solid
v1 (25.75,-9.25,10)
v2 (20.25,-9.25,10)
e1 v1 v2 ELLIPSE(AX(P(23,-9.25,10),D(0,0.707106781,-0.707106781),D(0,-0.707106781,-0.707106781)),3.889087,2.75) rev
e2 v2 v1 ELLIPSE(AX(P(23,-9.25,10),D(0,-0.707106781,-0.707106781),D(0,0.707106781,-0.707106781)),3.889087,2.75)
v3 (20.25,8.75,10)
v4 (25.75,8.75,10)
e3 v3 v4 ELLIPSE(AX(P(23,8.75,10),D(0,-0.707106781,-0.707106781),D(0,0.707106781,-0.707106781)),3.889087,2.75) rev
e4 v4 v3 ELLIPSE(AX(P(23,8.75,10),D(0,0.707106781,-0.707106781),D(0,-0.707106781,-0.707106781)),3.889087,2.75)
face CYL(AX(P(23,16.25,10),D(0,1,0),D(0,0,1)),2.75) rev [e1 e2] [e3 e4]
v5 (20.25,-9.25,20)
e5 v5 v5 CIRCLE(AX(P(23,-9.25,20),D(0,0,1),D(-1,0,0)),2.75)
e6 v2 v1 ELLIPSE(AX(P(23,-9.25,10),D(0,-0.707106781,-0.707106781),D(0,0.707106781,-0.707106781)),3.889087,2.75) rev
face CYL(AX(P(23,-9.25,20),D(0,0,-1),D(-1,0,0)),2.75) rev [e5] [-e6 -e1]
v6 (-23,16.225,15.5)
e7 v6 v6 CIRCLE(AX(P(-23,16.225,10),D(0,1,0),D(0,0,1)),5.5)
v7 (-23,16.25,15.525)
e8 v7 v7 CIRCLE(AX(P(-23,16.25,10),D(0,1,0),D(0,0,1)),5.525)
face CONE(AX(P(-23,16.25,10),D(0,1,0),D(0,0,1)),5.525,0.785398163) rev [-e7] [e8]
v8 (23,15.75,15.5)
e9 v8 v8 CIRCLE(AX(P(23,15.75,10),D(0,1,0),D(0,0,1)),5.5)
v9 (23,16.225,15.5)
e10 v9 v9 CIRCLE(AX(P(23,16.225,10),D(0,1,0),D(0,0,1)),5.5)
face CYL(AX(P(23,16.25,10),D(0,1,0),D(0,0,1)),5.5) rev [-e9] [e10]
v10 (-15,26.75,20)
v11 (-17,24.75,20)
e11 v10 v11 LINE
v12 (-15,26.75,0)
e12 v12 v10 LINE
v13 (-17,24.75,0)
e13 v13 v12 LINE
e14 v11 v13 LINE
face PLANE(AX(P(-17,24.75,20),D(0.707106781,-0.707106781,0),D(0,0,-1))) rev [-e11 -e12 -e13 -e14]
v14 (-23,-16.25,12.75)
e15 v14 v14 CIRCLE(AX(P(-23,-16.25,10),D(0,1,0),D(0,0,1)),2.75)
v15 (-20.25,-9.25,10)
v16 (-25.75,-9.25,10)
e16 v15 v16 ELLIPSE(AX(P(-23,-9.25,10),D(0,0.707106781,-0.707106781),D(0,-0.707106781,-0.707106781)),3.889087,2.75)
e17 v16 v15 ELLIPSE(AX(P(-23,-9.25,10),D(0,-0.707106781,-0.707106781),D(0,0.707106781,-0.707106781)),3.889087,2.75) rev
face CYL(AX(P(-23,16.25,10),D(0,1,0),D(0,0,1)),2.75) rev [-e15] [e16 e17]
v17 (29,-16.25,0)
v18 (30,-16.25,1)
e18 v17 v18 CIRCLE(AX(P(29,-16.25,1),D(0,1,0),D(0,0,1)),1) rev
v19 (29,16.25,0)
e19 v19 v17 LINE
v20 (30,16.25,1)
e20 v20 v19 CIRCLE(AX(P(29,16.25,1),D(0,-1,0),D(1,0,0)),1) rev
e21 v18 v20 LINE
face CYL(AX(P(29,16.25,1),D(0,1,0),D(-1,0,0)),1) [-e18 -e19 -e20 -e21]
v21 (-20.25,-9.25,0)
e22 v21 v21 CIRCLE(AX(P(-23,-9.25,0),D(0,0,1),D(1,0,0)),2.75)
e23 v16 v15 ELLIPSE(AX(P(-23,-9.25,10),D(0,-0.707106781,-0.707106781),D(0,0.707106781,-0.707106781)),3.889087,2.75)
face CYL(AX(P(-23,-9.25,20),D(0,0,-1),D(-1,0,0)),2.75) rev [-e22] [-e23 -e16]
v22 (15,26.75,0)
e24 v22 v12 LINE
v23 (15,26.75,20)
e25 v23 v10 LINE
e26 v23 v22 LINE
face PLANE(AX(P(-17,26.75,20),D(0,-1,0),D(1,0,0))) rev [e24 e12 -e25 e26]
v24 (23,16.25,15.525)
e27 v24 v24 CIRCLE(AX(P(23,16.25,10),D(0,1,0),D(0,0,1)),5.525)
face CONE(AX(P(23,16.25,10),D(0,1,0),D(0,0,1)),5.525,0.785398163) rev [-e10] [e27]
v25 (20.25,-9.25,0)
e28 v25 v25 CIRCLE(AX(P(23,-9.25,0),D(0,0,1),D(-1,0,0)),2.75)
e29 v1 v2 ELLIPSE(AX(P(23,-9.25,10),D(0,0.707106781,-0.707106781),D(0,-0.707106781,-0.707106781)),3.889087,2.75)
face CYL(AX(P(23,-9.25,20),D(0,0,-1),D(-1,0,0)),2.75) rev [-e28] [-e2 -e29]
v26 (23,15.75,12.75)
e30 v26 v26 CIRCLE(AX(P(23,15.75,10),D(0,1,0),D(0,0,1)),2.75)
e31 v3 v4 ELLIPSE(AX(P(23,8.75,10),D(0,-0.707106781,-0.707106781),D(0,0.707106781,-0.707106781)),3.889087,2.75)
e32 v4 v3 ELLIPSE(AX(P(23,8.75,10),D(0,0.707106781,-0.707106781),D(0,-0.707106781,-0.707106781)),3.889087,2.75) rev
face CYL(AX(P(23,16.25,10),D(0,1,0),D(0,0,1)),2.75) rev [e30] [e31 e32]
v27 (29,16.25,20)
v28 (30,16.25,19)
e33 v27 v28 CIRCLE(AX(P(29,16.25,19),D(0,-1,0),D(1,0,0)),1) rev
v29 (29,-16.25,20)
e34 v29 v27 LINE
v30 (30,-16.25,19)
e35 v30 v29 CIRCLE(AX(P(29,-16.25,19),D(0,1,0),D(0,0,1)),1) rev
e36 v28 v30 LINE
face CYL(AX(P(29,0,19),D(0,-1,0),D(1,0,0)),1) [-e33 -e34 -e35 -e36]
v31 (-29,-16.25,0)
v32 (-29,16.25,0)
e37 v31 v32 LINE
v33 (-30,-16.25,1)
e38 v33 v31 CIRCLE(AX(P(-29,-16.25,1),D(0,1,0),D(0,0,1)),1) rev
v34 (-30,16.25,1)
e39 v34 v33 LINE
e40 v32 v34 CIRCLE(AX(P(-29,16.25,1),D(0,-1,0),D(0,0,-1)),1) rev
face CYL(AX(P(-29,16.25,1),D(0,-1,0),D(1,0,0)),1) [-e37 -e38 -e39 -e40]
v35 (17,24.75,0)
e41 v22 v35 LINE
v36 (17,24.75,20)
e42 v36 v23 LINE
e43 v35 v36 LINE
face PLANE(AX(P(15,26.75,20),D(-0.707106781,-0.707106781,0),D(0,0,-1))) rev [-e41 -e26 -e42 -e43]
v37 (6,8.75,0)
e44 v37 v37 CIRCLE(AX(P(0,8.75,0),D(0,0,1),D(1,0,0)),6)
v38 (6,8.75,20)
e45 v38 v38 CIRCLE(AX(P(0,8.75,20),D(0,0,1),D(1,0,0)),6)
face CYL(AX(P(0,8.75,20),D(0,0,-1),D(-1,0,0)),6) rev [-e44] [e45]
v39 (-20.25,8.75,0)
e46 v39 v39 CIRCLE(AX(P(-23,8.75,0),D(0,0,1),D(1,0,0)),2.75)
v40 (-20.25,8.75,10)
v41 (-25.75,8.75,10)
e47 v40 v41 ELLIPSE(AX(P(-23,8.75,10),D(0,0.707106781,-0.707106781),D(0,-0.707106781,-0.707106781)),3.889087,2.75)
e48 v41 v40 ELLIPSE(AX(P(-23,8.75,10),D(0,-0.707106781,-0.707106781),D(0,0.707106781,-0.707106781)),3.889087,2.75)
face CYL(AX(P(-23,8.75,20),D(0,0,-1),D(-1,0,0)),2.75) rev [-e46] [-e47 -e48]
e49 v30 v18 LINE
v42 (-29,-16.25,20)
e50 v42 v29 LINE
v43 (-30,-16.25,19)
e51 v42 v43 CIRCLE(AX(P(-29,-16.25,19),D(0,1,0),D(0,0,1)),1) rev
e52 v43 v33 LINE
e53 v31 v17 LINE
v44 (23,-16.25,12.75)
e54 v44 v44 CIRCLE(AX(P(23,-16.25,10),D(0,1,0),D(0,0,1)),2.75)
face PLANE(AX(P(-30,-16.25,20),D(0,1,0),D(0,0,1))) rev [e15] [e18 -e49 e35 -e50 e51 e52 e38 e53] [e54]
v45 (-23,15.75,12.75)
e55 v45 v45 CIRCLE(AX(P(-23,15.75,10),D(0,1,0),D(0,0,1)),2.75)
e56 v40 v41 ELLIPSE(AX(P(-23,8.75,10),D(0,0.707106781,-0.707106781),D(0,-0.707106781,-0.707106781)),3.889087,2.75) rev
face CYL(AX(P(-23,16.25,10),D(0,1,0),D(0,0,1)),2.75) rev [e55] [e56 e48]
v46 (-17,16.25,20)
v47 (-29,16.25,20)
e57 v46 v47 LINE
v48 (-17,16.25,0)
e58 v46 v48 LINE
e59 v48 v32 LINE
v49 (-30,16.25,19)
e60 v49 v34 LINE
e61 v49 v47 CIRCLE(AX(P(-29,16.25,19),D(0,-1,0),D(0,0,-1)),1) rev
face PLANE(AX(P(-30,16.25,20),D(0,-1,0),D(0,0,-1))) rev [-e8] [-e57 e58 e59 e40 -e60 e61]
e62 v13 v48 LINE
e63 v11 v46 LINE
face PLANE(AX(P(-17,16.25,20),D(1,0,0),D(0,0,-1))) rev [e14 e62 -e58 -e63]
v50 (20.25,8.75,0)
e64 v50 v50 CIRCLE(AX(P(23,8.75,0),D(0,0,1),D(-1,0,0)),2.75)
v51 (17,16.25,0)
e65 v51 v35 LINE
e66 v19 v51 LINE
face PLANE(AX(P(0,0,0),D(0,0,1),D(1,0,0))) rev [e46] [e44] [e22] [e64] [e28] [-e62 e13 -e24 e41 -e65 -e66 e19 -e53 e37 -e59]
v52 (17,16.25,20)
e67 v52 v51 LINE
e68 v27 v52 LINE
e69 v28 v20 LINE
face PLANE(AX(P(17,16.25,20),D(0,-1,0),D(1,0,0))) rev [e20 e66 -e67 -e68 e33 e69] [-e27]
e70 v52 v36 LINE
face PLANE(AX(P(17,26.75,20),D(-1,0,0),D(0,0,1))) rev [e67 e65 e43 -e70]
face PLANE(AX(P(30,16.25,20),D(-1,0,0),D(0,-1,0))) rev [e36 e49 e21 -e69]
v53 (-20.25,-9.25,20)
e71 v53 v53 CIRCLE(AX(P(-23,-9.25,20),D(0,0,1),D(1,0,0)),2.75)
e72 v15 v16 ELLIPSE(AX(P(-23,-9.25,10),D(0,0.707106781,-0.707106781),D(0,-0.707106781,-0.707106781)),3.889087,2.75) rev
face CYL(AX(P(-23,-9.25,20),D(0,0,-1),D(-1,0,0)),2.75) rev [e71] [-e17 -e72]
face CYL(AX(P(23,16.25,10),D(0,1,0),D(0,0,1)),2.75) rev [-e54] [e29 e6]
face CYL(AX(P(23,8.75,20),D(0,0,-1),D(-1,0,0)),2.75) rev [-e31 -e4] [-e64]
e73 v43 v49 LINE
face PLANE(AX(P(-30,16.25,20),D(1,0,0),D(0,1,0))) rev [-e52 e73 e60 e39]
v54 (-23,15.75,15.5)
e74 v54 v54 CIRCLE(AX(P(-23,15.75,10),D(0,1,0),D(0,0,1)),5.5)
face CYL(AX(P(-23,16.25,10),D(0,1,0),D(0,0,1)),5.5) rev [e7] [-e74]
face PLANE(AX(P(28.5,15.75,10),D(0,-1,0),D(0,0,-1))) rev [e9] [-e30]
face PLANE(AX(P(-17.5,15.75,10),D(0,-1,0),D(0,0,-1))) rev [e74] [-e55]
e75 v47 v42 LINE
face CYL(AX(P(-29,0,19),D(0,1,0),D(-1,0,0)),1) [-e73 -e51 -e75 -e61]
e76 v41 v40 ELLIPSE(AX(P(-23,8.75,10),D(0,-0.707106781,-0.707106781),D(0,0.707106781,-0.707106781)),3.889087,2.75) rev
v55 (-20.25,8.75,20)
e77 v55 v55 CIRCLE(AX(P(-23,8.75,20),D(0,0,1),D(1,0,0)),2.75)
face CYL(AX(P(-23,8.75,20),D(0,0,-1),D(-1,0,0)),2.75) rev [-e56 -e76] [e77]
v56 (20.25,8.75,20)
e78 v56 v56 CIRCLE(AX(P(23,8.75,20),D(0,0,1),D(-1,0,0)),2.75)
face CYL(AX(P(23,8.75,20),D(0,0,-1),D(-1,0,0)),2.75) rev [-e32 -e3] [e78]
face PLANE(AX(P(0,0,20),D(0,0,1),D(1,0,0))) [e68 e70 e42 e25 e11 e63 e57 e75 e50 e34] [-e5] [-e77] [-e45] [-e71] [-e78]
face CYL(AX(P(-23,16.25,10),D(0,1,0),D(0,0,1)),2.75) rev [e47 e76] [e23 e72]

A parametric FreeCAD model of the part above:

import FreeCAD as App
import Part
import Sketcher
from FreeCAD import Vector
Q = App.Units.Quantity


def edges_at(feature, points):
    """Names of the edges that pass closest to the given points."""
    edges = feature.Shape.Edges
    near = lambda p: min(range(len(edges)), key=lambda i: edges[i].distToShape(Part.Vertex(*p))[0])
    return sorted({f"Edge{near(p) + 1}" for p in points})


def add_polygon(sketch, points):
    """Adds a closed chain of lines whose ends are joined by coincident constraints."""
    first, n = sketch.GeometryCount, len(points)
    for a, b in zip(points, points[1:] + points[:1]):
        sketch.addGeometry(Part.LineSegment(App.Vector(*a, 0), App.Vector(*b, 0)), False)
    for i in range(n):
        sketch.addConstraint(Sketcher.Constraint("Coincident", first + i, 2, first + (i + 1) % n, 1))

doc = App.newDocument("Part")
body = doc.addObject("PartDesign::Body", "Body")

sketch1 = body.newObject("Sketcher::SketchObject", "Sketch")
sketch1.AttachmentSupport = (doc.getObject("XY_Plane"), [""])
sketch1.MapMode = "FlatFace"
add_polygon(sketch1, [(-17, 26.8), (-17, 16.2), (-30, 16.2), (-30, -16.2), (30, -16.2), (30, 16.2), (17, 16.2), (17, 26.8)])
sketch1.addGeometry(Part.Circle(Vector(23, -9.2, 0), Vector(0, 0, 1), 2.8), False)
sketch1.addGeometry(Part.Circle(Vector(-23, -9.2, 0), Vector(0, 0, 1), 2.8), False)
sketch1.addGeometry(Part.Circle(Vector(23, 8.8, 0), Vector(0, 0, 1), 2.8), False)
sketch1.addGeometry(Part.Circle(Vector(0, 8.8, 0), Vector(0, 0, 1), 6), False)
sketch1.addGeometry(Part.Circle(Vector(-23, 8.8, 0), Vector(0, 0, 1), 2.8), False)
sketch1.addConstraint([
    Sketcher.Constraint("Vertical", 0),
    Sketcher.Constraint("Horizontal", 1),
    Sketcher.Constraint("Vertical", 2),
    Sketcher.Constraint("Horizontal", 3),
    Sketcher.Constraint("Vertical", 4),
    Sketcher.Constraint("Horizontal", 5),
    Sketcher.Constraint("Vertical", 6),
    Sketcher.Constraint("Horizontal", 7),
    Sketcher.Constraint("Equal", 8, 9),
    Sketcher.Constraint("Equal", 9, 10),
    Sketcher.Constraint("Equal", 10, 12),
    Sketcher.Constraint("Symmetric", 1, 2, 3, 2, -1, 1),
    Sketcher.Constraint("Symmetric", 8, 3, 9, 3, -2),
    Sketcher.Constraint("Symmetric", 10, 3, 12, 3, -2),
    Sketcher.Constraint("Symmetric", 0, 2, 5, 2, -2),
    Sketcher.Constraint("PointOnObject", 11, 3, -2),
    Sketcher.Constraint("Horizontal", 10, 3, 11, 3),
    Sketcher.Constraint("Vertical", 8, 3, 10, 3),
    Sketcher.Constraint("Diameter", 11, Q("12 mm")),
    Sketcher.Constraint("Diameter", 8, Q("5.5 mm")),
    Sketcher.Constraint("DistanceX", 1, 2, 1, 1, Q("13 mm")),
    Sketcher.Constraint("DistanceX", 3, 1, 3, 2, Q("60 mm")),
    Sketcher.Constraint("DistanceY", 0, 2, 0, 1, Q("10.5 mm")),
    Sketcher.Constraint("DistanceY", 2, 2, 2, 1, Q("32.5 mm")),
    Sketcher.Constraint("DistanceX", -1, 1, 8, 3, Q("23 mm")),
    Sketcher.Constraint("DistanceY", 8, 3, 10, 3, Q("18 mm")),
    Sketcher.Constraint("DistanceY", 2, 2, 9, 3, Q("7 mm")),
])
pad1 = body.newObject("PartDesign::Pad", "Pad")
pad1.Profile = sketch1
pad1.Length = 20
doc.recompute()

chamfer = body.newObject("PartDesign::Chamfer", "Chamfer")
chamfer.Base = (pad1, edges_at(pad1, [(-17, 26.75, 10), (17, 26.75, 10)]))
chamfer.Size = 2
doc.recompute()

fillet = body.newObject("PartDesign::Fillet", "Fillet")
fillet.Base = (chamfer, edges_at(chamfer, [
    (30, 0, 0),
    (-30, 0, 20),
    (30, 0, 20),
    (-30, 0, 0),
]))
fillet.Radius = 1

sketch2 = body.newObject("Sketcher::SketchObject", "Sketch001")
sketch2.AttachmentSupport = (doc.getObject("YZ_Plane"), [""])
sketch2.MapMode = "FlatFace"
sketch2.AttachmentOffset = App.Placement(Vector(0, 0, 23), App.Rotation())
add_polygon(sketch2, [(-16.25, 10), (16.25, 10), (16.25, 15.525), (16.225, 15.5), (15.75, 15.5), (15.75, 12.75), (-16.25, 12.75)])
sketch2.addGeometry(Part.LineSegment(Vector(16.25, 10, 0), Vector(-16.25, 10, 0)), True)
sketch2.addConstraint([
    Sketcher.Constraint("Horizontal", 0),
    Sketcher.Constraint("Vertical", 1),
    Sketcher.Constraint("Horizontal", 3),
    Sketcher.Constraint("Vertical", 4),
    Sketcher.Constraint("Horizontal", 5),
    Sketcher.Constraint("Vertical", 6),
    Sketcher.Constraint("Horizontal", 7),
    Sketcher.Constraint("Coincident", 7, 1, 0, 2),
    Sketcher.Constraint("Vertical", 5, 2, 7, 2),
    Sketcher.Constraint("Equal", 4, 6),
    Sketcher.Constraint("DistanceX", 5, 2, 5, 1, Q("32 mm")),
    Sketcher.Constraint("Angle", 2, Q("-135 deg")),
    Sketcher.Constraint("DistanceX", 0, 1, 0, 2, Q("32.5 mm")),
    Sketcher.Constraint("DistanceY", -1, 1, 0, 2, Q("10 mm")),
    Sketcher.Constraint("DistanceY", 4, 2, 4, 1, Q("2.75 mm")),
    Sketcher.Constraint("DistanceX", 3, 2, 3, 1, Q("0.475 mm")),
    Sketcher.Constraint("DistanceX", -1, 1, 0, 2, Q("16.25 mm")),
])
groove = body.newObject("PartDesign::Groove", "Groove")
groove.Profile = sketch2
groove.ReferenceAxis = (sketch2, ["Axis0"])
groove.Angle = 360
doc.recompute()

linearpattern = body.newObject("PartDesign::LinearPattern", "LinearPattern")
linearpattern.Originals = [groove]
linearpattern.Direction = (doc.getObject("X_Axis"), [""])
linearpattern.Mode = "offset"
linearpattern.Offset = 46
linearpattern.Occurrences = 2
linearpattern.Reversed = True
body.Tip = linearpattern

doc.recompute()
